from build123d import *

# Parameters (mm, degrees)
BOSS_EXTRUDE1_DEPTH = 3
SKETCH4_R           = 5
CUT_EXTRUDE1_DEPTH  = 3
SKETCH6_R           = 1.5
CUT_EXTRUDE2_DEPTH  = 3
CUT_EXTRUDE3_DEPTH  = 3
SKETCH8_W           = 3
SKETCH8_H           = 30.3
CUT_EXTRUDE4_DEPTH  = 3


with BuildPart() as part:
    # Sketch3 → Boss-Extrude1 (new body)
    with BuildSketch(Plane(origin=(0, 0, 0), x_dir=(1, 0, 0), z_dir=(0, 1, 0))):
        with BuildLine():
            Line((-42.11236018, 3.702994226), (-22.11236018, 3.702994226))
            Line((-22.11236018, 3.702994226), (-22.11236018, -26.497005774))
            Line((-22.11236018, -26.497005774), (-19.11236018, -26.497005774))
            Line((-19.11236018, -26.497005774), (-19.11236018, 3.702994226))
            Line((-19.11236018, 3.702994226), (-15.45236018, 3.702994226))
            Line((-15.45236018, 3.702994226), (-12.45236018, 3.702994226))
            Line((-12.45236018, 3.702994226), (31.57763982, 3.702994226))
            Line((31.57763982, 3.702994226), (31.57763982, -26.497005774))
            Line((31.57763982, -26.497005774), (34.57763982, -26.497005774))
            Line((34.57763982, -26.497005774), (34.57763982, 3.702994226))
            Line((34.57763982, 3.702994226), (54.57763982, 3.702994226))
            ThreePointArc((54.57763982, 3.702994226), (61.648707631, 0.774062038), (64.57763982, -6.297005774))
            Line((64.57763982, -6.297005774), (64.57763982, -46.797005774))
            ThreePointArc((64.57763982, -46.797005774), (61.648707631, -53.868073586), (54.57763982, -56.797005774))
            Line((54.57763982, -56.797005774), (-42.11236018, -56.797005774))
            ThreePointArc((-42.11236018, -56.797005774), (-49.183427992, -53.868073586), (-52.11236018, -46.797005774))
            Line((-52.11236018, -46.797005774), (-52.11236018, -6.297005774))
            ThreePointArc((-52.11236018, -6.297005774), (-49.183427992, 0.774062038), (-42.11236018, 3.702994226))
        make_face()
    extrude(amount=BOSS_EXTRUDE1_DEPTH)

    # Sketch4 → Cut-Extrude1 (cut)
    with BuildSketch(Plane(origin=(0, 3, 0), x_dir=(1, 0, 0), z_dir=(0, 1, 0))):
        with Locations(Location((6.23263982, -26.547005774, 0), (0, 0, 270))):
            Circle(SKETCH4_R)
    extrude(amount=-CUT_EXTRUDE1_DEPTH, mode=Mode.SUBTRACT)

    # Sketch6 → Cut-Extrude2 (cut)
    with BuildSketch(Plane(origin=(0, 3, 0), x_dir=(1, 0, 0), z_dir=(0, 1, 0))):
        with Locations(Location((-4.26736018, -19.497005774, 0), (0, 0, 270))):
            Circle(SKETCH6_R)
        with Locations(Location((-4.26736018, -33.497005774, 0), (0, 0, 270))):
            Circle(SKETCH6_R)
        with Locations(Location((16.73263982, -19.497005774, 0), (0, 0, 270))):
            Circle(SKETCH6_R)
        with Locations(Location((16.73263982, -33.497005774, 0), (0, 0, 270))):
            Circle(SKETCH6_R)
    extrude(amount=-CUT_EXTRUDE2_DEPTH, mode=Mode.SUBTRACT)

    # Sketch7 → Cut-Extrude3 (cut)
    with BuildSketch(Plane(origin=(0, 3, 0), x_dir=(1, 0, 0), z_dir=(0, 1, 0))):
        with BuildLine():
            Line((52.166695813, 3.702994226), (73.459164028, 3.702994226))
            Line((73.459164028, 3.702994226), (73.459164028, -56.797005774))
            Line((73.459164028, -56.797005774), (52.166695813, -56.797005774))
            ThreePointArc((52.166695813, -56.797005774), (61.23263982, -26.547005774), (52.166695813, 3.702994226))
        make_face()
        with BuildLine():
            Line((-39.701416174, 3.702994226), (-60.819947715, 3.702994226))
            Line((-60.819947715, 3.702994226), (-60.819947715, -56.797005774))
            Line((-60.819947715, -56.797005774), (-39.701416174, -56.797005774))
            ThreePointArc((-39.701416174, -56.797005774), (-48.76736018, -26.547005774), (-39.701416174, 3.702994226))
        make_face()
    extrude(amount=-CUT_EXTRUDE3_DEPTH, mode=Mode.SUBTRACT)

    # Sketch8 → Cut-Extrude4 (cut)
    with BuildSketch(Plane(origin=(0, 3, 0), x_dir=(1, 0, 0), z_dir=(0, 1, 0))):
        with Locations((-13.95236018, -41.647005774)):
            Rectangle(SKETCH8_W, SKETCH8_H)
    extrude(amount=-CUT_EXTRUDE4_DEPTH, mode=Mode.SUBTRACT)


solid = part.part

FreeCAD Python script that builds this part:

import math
import FreeCAD as App
import Part
import Sketcher

doc = App.newDocument("Part")
body = doc.addObject("PartDesign::Body", "Body")

# Sketch on XZ plane
sketch1 = doc.addObject("Sketcher::SketchObject", "Sketch")
body.addObject(sketch1)
sketch1.AttachmentSupport = (doc.XZ_Plane, [""])
sketch1.MapMode = "FlatFace"
sketch1.addGeometry([
    Part.LineSegment(App.Vector(-22.11236, -3.702994, 0), App.Vector(-42.11236, -3.702994, 0)),  # 0
    Part.ArcOfCircle(Part.Circle(App.Vector(-42.11236, 6.297006, 0), App.Vector(0, 0, 1), 10), math.radians(180), math.radians(270)),  # 1
    Part.LineSegment(App.Vector(-52.11236, 6.297006, 0), App.Vector(-52.11236, 46.797006, 0)),  # 2
    Part.ArcOfCircle(Part.Circle(App.Vector(-42.11236, 46.797006, 0), App.Vector(0, 0, 1), 10), math.radians(90), math.radians(180)),  # 3
    Part.LineSegment(App.Vector(-42.11236, 56.797006, 0), App.Vector(54.57764, 56.797006, 0)),  # 4
    Part.ArcOfCircle(Part.Circle(App.Vector(54.57764, 46.797006, 0), App.Vector(0, 0, 1), 10), math.radians(0), math.radians(90)),  # 5
    Part.LineSegment(App.Vector(64.57764, 46.797006, 0), App.Vector(64.57764, 6.297006, 0)),  # 6
    Part.ArcOfCircle(Part.Circle(App.Vector(54.57764, 6.297006, 0), App.Vector(0, 0, 1), 10), math.radians(-90), math.radians(0)),  # 7
    Part.LineSegment(App.Vector(54.57764, -3.702994, 0), App.Vector(34.57764, -3.702994, 0)),  # 8
    Part.LineSegment(App.Vector(34.57764, -3.702994, 0), App.Vector(34.57764, 26.497006, 0)),  # 9
    Part.LineSegment(App.Vector(34.57764, 26.497006, 0), App.Vector(31.57764, 26.497006, 0)),  # 10
    Part.LineSegment(App.Vector(31.57764, 26.497006, 0), App.Vector(31.57764, -3.702994, 0)),  # 11
    Part.LineSegment(App.Vector(31.57764, -3.702994, 0), App.Vector(-19.11236, -3.702994, 0)),  # 12
    Part.LineSegment(App.Vector(-19.11236, -3.702994, 0), App.Vector(-19.11236, 26.497006, 0)),  # 13
    Part.LineSegment(App.Vector(-19.11236, 26.497006, 0), App.Vector(-22.11236, 26.497006, 0)),  # 14
    Part.LineSegment(App.Vector(-22.11236, 26.497006, 0), App.Vector(-22.11236, -3.702994, 0)),  # 15
], False)
sketch1.addConstraint([
    Sketcher.Constraint("Tangent", 0, 2, 1, 2),
    Sketcher.Constraint("Tangent", 1, 1, 2, 1),
    Sketcher.Constraint("Tangent", 2, 2, 3, 2),
    Sketcher.Constraint("Tangent", 3, 1, 4, 1),
    Sketcher.Constraint("Tangent", 4, 2, 5, 2),
    Sketcher.Constraint("Tangent", 5, 1, 6, 1),
    Sketcher.Constraint("Tangent", 6, 2, 7, 2),
    Sketcher.Constraint("Tangent", 7, 1, 8, 1),
    Sketcher.Constraint("Coincident", 8, 2, 9, 1),
    Sketcher.Constraint("Coincident", 9, 2, 10, 1),
    Sketcher.Constraint("Coincident", 10, 2, 11, 1),
    Sketcher.Constraint("Coincident", 11, 2, 12, 1),
    Sketcher.Constraint("Coincident", 12, 2, 13, 1),
    Sketcher.Constraint("Coincident", 13, 2, 14, 1),
    Sketcher.Constraint("Coincident", 14, 2, 15, 1),
    Sketcher.Constraint("Coincident", 15, 2, 0, 1),
    Sketcher.Constraint("Horizontal", 0),
    Sketcher.Constraint("Vertical", 2),
    Sketcher.Constraint("Horizontal", 4),
    Sketcher.Constraint("Vertical", 6),
    Sketcher.Constraint("Horizontal", 8),
    Sketcher.Constraint("Vertical", 9),
    Sketcher.Constraint("Horizontal", 10),
    Sketcher.Constraint("Vertical", 11),
    Sketcher.Constraint("Horizontal", 12),
    Sketcher.Constraint("Vertical", 13),
    Sketcher.Constraint("Horizontal", 14),
    Sketcher.Constraint("Vertical", 15),
    Sketcher.Constraint("Equal", 1, 3),
    Sketcher.Constraint("Equal", 3, 5),
    Sketcher.Constraint("Equal", 5, 7),
    Sketcher.Constraint("Horizontal", 1, 3, 7, 3),
    Sketcher.Constraint("Horizontal", 8, 2, 11, 2),
    Sketcher.Constraint("Horizontal", 10, 2, 13, 2),
    Sketcher.Constraint("Equal", 0, 8),
    Sketcher.Constraint("Equal", 10, 14),
    Sketcher.Constraint("Radius", 1, 10.0),
    Sketcher.Constraint("DistanceX", 0, 2, 0, 1, 20.0),
    Sketcher.Constraint("DistanceX", 10, 2, 10, 1, 3.0),
    Sketcher.Constraint("DistanceY", 2, 1, 2, 2, 40.5),
    Sketcher.Constraint("DistanceY", 9, 1, 9, 2, 30.2),
    Sketcher.Constraint("DistanceX", 4, 1, 4, 2, 96.69),
    Sketcher.Constraint("DistanceX", 1, 3, -1, 1, 42.11236),
    Sketcher.Constraint("DistanceY", -1, 1, 1, 3, 6.297006),
])
pad1 = doc.addObject("PartDesign::Pad", "Pad")
body.addObject(pad1)
pad1.Profile = sketch1
pad1.Length = 3
pad1.Reversed = True

# Sketch on XZ plane
sketch2 = doc.addObject("Sketcher::SketchObject", "Sketch001")
body.addObject(sketch2)
sketch2.AttachmentSupport = (doc.XZ_Plane, [""])
sketch2.MapMode = "FlatFace"
sketch2.AttachmentOffset = App.Placement(App.Vector(0, 0, -3), App.Rotation())
sketch2.addGeometry(Part.Circle(App.Vector(6.23264, 26.547006, 0), App.Vector(0, 0, 1), 5), False)
sketch2.addConstraint([
    Sketcher.Constraint("Diameter", 0, 10.0),
    Sketcher.Constraint("DistanceX", -1, 1, 0, 3, 6.23264),
    Sketcher.Constraint("DistanceY", -1, 1, 0, 3, 26.547006),
])
pocket1 = doc.addObject("PartDesign::Pocket", "Pocket")
body.addObject(pocket1)
pocket1.Profile = sketch2
pocket1.Length = 3
pocket1.Reversed = True

# Sketch on XZ plane
sketch3 = doc.addObject("Sketcher::SketchObject", "Sketch002")
body.addObject(sketch3)
sketch3.AttachmentSupport = (doc.XZ_Plane, [""])
sketch3.MapMode = "FlatFace"
sketch3.AttachmentOffset = App.Placement(App.Vector(0, 0, -3), App.Rotation())
sketch3.addGeometry([
    Part.Circle(App.Vector(-4.26736, 19.497006, 0), App.Vector(0, 0, 1), 1.5),
    Part.Circle(App.Vector(-4.26736, 33.497006, 0), App.Vector(0, 0, 1), 1.5),
    Part.Circle(App.Vector(16.73264, 19.497006, 0), App.Vector(0, 0, 1), 1.5),
    Part.Circle(App.Vector(16.73264, 33.497006, 0), App.Vector(0, 0, 1), 1.5),
], False)
sketch3.addConstraint([
    Sketcher.Constraint("Equal", 0, 1),
    Sketcher.Constraint("Equal", 1, 2),
    Sketcher.Constraint("Equal", 2, 3),
    Sketcher.Constraint("Horizontal", 0, 3, 2, 3),
    Sketcher.Constraint("Horizontal", 1, 3, 3, 3),
    Sketcher.Constraint("Vertical", 0, 3, 1, 3),
    Sketcher.Constraint("Vertical", 2, 3, 3, 3),
    Sketcher.Constraint("Diameter", 0, 3.0),
    Sketcher.Constraint("DistanceY", 0, 3, 1, 3, 14.0),
    Sketcher.Constraint("DistanceX", 0, 3, 2, 3, 21.0),
    Sketcher.Constraint("DistanceX", 0, 3, -1, 1, 4.26736),
    Sketcher.Constraint("DistanceY", -1, 1, 0, 3, 19.497006),
])
pocket2 = doc.addObject("PartDesign::Pocket", "Pocket001")
body.addObject(pocket2)
pocket2.Profile = sketch3
pocket2.Length = 3
pocket2.Reversed = True

# Sketch on XZ plane
sketch4 = doc.addObject("Sketcher::SketchObject", "Sketch003")
body.addObject(sketch4)
sketch4.AttachmentSupport = (doc.XZ_Plane, [""])
sketch4.MapMode = "FlatFace"
sketch4.AttachmentOffset = App.Placement(App.Vector(0, 0, -3), App.Rotation())
sketch4.addGeometry([
    Part.LineSegment(App.Vector(73.459164, -3.702994, 0), App.Vector(52.166696, -3.702994, 0)),  # 0
    Part.ArcOfCircle(Part.Circle(App.Vector(6.23264, 26.547006, 0), App.Vector(0, 0, 1), 55), math.radians(-33.367013), math.radians(33.367013)),  # 1
    Part.LineSegment(App.Vector(52.166696, 56.797006, 0), App.Vector(73.459164, 56.797006, 0)),  # 2
    Part.LineSegment(App.Vector(73.459164, 56.797006, 0), App.Vector(73.459164, -3.702994, 0)),  # 3
    Part.LineSegment(App.Vector(-39.701416, -3.702994, 0), App.Vector(-60.819948, -3.702994, 0)),  # 4
    Part.LineSegment(App.Vector(-60.819948, -3.702994, 0), App.Vector(-60.819948, 56.797006, 0)),  # 5
    Part.LineSegment(App.Vector(-60.819948, 56.797006, 0), App.Vector(-39.701416, 56.797006, 0)),  # 6
    Part.ArcOfCircle(Part.Circle(App.Vector(6.23264, 26.547006, 0), App.Vector(0, 0, 1), 55), math.radians(146.632987), math.radians(213.367013)),  # 7
], False)
sketch4.addConstraint([
    Sketcher.Constraint("Coincident", 0, 2, 1, 1),
    Sketcher.Constraint("Coincident", 1, 2, 2, 1),
    Sketcher.Constraint("Coincident", 2, 2, 3, 1),
    Sketcher.Constraint("Coincident", 3, 2, 0, 1),
    Sketcher.Constraint("Coincident", 4, 2, 5, 1),
    Sketcher.Constraint("Coincident", 5, 2, 6, 1),
    Sketcher.Constraint("Coincident", 6, 2, 7, 1),
    Sketcher.Constraint("Coincident", 7, 2, 4, 1),
    Sketcher.Constraint("Horizontal", 0),
    Sketcher.Constraint("Horizontal", 2),
    Sketcher.Constraint("Vertical", 3),
    Sketcher.Constraint("Horizontal", 4),
    Sketcher.Constraint("Vertical", 5),
    Sketcher.Constraint("Horizontal", 6),
    Sketcher.Constraint("Coincident", 7, 3, 1, 3),
    Sketcher.Constraint("Equal", 1, 7),
    Sketcher.Constraint("Horizontal", 3, 2, 4, 2),
    Sketcher.Constraint("Horizontal", 2, 2, 5, 2),
    Sketcher.Constraint("Vertical", 0, 2, 1, 2),
    Sketcher.Constraint("Radius", 1, 55.0),
    Sketcher.Constraint("DistanceY", 3, 2, 3, 1, 60.5),
    Sketcher.Constraint("DistanceX", 0, 2, 0, 1, 21.292468),
    Sketcher.Constraint("DistanceX", 4, 2, 4, 1, 21.118532),
    Sketcher.Constraint("DistanceX", -1, 1, 1, 3, 6.23264),
    Sketcher.Constraint("DistanceY", -1, 1, 1, 3, 26.547006),
])
pocket3 = doc.addObject("PartDesign::Pocket", "Pocket002")
body.addObject(pocket3)
pocket3.Profile = sketch4
pocket3.Length = 3
pocket3.Reversed = True

# Sketch on XZ plane
sketch5 = doc.addObject("Sketcher::SketchObject", "Sketch004")
body.addObject(sketch5)
sketch5.AttachmentSupport = (doc.XZ_Plane, [""])
sketch5.MapMode = "FlatFace"
sketch5.AttachmentOffset = App.Placement(App.Vector(0, 0, -3), App.Rotation())
sketch5.addGeometry([
    Part.LineSegment(App.Vector(-15.45236, 26.497006, 0), App.Vector(-15.45236, 56.797006, 0)),
    Part.LineSegment(App.Vector(-15.45236, 56.797006, 0), App.Vector(-12.45236, 56.797006, 0)),
    Part.LineSegment(App.Vector(-12.45236, 56.797006, 0), App.Vector(-12.45236, 26.497006, 0)),
    Part.LineSegment(App.Vector(-12.45236, 26.497006, 0), App.Vector(-15.45236, 26.497006, 0)),
], False)
sketch5.addConstraint([
    Sketcher.Constraint("Coincident", 0, 2, 1, 1),
    Sketcher.Constraint("Coincident", 1, 2, 2, 1),
    Sketcher.Constraint("Coincident", 2, 2, 3, 1),
    Sketcher.Constraint("Coincident", 3, 2, 0, 1),
    Sketcher.Constraint("Vertical", 0),
    Sketcher.Constraint("Horizontal", 1),
    Sketcher.Constraint("Vertical", 2),
    Sketcher.Constraint("Horizontal", 3),
    Sketcher.Constraint("DistanceX", 1, 1, 1, 2, 3.0),
    Sketcher.Constraint("DistanceY", 0, 1, 0, 2, 30.3),
    Sketcher.Constraint("DistanceX", 0, 2, -1, 1, 15.45236),
    Sketcher.Constraint("DistanceY", -1, 1, 0, 2, 56.797006),
])
pocket4 = doc.addObject("PartDesign::Pocket", "Pocket003")
body.addObject(pocket4)
pocket4.Profile = sketch5
pocket4.Length = 3
pocket4.Reversed = True

doc.recompute()
